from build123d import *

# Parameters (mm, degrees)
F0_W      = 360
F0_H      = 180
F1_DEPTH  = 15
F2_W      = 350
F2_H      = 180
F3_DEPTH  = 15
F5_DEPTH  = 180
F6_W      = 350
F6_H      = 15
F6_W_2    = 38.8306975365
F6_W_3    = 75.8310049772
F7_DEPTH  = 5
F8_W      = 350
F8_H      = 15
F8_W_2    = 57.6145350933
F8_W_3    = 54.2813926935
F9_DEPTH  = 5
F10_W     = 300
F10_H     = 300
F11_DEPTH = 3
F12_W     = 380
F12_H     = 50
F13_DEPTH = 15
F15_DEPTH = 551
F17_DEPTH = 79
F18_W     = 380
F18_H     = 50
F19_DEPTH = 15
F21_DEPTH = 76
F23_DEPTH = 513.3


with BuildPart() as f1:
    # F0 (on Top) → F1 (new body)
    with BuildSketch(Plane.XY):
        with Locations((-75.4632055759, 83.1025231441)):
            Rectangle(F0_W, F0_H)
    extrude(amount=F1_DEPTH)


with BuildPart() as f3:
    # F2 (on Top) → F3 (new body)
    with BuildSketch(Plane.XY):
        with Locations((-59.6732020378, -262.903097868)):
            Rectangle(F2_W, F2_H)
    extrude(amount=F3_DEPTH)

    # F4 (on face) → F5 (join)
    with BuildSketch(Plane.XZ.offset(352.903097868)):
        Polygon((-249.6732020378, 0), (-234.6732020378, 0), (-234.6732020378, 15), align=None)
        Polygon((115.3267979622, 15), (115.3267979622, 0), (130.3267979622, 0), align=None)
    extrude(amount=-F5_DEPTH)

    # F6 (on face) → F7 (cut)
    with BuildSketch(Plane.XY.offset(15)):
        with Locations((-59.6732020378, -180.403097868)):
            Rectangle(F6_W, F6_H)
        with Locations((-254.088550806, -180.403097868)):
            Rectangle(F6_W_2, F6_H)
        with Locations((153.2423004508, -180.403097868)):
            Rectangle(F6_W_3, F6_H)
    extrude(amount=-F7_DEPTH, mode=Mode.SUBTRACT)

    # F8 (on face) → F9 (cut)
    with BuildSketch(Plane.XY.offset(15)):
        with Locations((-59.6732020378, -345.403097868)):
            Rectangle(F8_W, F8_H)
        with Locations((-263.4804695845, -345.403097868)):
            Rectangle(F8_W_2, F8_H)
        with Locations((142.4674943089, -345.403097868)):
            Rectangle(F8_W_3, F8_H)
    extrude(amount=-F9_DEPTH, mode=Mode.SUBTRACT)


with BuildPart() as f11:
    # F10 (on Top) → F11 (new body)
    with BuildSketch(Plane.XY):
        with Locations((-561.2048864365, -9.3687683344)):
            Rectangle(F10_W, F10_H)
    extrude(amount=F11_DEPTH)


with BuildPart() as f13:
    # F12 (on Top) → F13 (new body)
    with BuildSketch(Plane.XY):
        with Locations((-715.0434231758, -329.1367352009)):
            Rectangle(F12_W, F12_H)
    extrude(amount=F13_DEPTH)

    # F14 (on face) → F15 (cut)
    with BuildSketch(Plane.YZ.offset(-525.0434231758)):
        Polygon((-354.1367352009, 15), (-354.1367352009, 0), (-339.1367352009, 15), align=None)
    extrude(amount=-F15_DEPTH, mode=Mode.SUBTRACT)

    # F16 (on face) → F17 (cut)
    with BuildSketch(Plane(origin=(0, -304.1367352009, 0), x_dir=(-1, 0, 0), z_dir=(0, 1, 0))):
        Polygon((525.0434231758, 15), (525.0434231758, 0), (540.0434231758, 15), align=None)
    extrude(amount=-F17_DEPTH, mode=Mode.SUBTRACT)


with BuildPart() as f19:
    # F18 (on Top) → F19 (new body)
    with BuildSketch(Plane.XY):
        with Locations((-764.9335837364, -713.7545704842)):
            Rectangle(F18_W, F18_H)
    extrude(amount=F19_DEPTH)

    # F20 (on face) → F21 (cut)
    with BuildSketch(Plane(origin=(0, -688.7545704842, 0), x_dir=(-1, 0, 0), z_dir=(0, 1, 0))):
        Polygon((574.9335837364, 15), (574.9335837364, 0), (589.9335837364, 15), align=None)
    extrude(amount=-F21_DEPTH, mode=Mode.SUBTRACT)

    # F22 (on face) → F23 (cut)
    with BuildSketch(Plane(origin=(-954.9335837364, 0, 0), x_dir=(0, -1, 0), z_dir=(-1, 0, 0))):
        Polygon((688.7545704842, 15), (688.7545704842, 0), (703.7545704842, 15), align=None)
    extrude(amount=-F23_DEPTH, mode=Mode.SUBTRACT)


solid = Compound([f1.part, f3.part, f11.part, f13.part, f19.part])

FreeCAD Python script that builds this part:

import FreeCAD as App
import Part
import Sketcher

doc = App.newDocument("Part")
body = doc.addObject("PartDesign::Body", "Body")

sketch1 = doc.addObject("Sketcher::SketchObject", "Sketch")
body.addObject(sketch1)
sketch1.AttachmentSupport = (doc.XY_Plane, [""])
sketch1.MapMode = "FlatFace"
sketch1.addGeometry(Part.LineSegment(App.Vector(-255, 173, 0), App.Vector(-255, -7, 0)), False)
sketch1.addGeometry(Part.LineSegment(App.Vector(-255, -7, 0), App.Vector(105, -7, 0)), False)
sketch1.addGeometry(Part.LineSegment(App.Vector(105, -7, 0), App.Vector(105, 173, 0)), False)
sketch1.addGeometry(Part.LineSegment(App.Vector(105, 173, 0), App.Vector(-255, 173, 0)), False)
sketch1.addConstraint(Sketcher.Constraint("Coincident", 0, 2, 1, 1))
sketch1.addConstraint(Sketcher.Constraint("Coincident", 1, 2, 2, 1))
sketch1.addConstraint(Sketcher.Constraint("Coincident", 2, 2, 3, 1))
sketch1.addConstraint(Sketcher.Constraint("Coincident", 3, 2, 0, 1))
sketch1.addConstraint(Sketcher.Constraint("Vertical", 0))
sketch1.addConstraint(Sketcher.Constraint("Horizontal", 1))
sketch1.addConstraint(Sketcher.Constraint("Vertical", 2))
sketch1.addConstraint(Sketcher.Constraint("Horizontal", 3))
sketch1.addConstraint(Sketcher.Constraint("DistanceX", 1, 1, 1, 2, 360.0))
sketch1.addConstraint(Sketcher.Constraint("DistanceY", 0, 2, 0, 1, 180.0))
sketch1.addConstraint(Sketcher.Constraint("DistanceX", 0, 2, -1, 1, 255.463206))
sketch1.addConstraint(Sketcher.Constraint("DistanceY", 0, 2, -1, 1, 6.897477))
pad1 = doc.addObject("PartDesign::Pad", "Pad")
body.addObject(pad1)
pad1.Profile = sketch1
pad1.Length = 15
body2 = doc.addObject("PartDesign::Body", "Body001")

sketch2 = doc.addObject("Sketcher::SketchObject", "Sketch001")
body2.addObject(sketch2)
sketch2.AttachmentSupport = (doc.getObject("XY_Plane001"), [""])
sketch2.MapMode = "FlatFace"
sketch2.addGeometry(Part.LineSegment(App.Vector(-235, -173, 0), App.Vector(-235, -353, 0)), False)
sketch2.addGeometry(Part.LineSegment(App.Vector(-235, -353, 0), App.Vector(115, -353, 0)), False)
sketch2.addGeometry(Part.LineSegment(App.Vector(115, -353, 0), App.Vector(115, -173, 0)), False)
sketch2.addGeometry(Part.LineSegment(App.Vector(115, -173, 0), App.Vector(-235, -173, 0)), False)
sketch2.addConstraint(Sketcher.Constraint("Coincident", 0, 2, 1, 1))
sketch2.addConstraint(Sketcher.Constraint("Coincident", 1, 2, 2, 1))
sketch2.addConstraint(Sketcher.Constraint("Coincident", 2, 2, 3, 1))
sketch2.addConstraint(Sketcher.Constraint("Coincident", 3, 2, 0, 1))
sketch2.addConstraint(Sketcher.Constraint("Vertical", 0))
sketch2.addConstraint(Sketcher.Constraint("Horizontal", 1))
sketch2.addConstraint(Sketcher.Constraint("Vertical", 2))
sketch2.addConstraint(Sketcher.Constraint("Horizontal", 3))
sketch2.addConstraint(Sketcher.Constraint("DistanceX", 1, 1, 1, 2, 350.0))
sketch2.addConstraint(Sketcher.Constraint("DistanceY", 0, 2, 0, 1, 180.0))
sketch2.addConstraint(Sketcher.Constraint("DistanceX", 0, 2, -1, 1, 234.673202))
sketch2.addConstraint(Sketcher.Constraint("DistanceY", 0, 2, -1, 1, 352.903098))
pad2 = doc.addObject("PartDesign::Pad", "Pad001")
body2.addObject(pad2)
pad2.Profile = sketch2
pad2.Length = 15

sketch3 = doc.addObject("Sketcher::SketchObject", "Sketch002")
body2.addObject(sketch3)
sketch3.AttachmentSupport = (doc.getObject("XZ_Plane001"), [""])
sketch3.MapMode = "FlatFace"
sketch3.AttachmentOffset = App.Placement(App.Vector(0, 0, 352.903098), App.Rotation())
sketch3.addGeometry(Part.LineSegment(App.Vector(-250, 0, 0), App.Vector(-235, 0, 0)), False)
sketch3.addGeometry(Part.LineSegment(App.Vector(-235, 0, 0), App.Vector(-235, 15, 0)), False)
sketch3.addGeometry(Part.LineSegment(App.Vector(-235, 15, 0), App.Vector(-250, 0, 0)), False)
sketch3.addGeometry(Part.LineSegment(App.Vector(115, 15, 0), App.Vector(115, 0, 0)), False)
sketch3.addGeometry(Part.LineSegment(App.Vector(115, 0, 0), App.Vector(130, 0, 0)), False)
sketch3.addGeometry(Part.LineSegment(App.Vector(130, 0, 0), App.Vector(115, 15, 0)), False)
sketch3.addConstraint(Sketcher.Constraint("Coincident", 0, 2, 1, 1))
sketch3.addConstraint(Sketcher.Constraint("Coincident", 1, 2, 2, 1))
sketch3.addConstraint(Sketcher.Constraint("Coincident", 2, 2, 0, 1))
sketch3.addConstraint(Sketcher.Constraint("Coincident", 3, 2, 4, 1))
sketch3.addConstraint(Sketcher.Constraint("Coincident", 4, 2, 5, 1))
sketch3.addConstraint(Sketcher.Constraint("Coincident", 5, 2, 3, 1))
sketch3.addConstraint(Sketcher.Constraint("Horizontal", 0))
sketch3.addConstraint(Sketcher.Constraint("Vertical", 1))
sketch3.addConstraint(Sketcher.Constraint("Vertical", 3))
sketch3.addConstraint(Sketcher.Constraint("Horizontal", 4))
sketch3.addConstraint(Sketcher.Constraint("PointOnObject", 0, 2, -1))
sketch3.addConstraint(Sketcher.Constraint("PointOnObject", 3, 2, -1))
sketch3.addConstraint(Sketcher.Constraint("Perpendicular", 2, 5))
sketch3.addConstraint(Sketcher.Constraint("Horizontal", 1, 2, 5, 2))
sketch3.addConstraint(Sketcher.Constraint("Equal", 0, 4))
sketch3.addConstraint(Sketcher.Constraint("DistanceX", 0, 1, 0, 2, 15.0))
sketch3.addConstraint(Sketcher.Constraint("DistanceX", 0, 2, 3, 2, 350.0))
sketch3.addConstraint(Sketcher.Constraint("DistanceX", 0, 2, -1, 1, 234.673202))
pad3 = doc.addObject("PartDesign::Pad", "Pad002")
body2.addObject(pad3)
pad3.Profile = sketch3
pad3.Length = 180
pad3.Reversed = True

sketch4 = doc.addObject("Sketcher::SketchObject", "Sketch003")
body2.addObject(sketch4)
sketch4.AttachmentSupport = (doc.getObject("XY_Plane001"), [""])
sketch4.MapMode = "FlatFace"
sketch4.AttachmentOffset = App.Placement(App.Vector(0, 0, 15), App.Rotation())
sketch4.addGeometry(Part.LineSegment(App.Vector(-274, -173, 0), App.Vector(-274, -188, 0)), False)
sketch4.addGeometry(Part.LineSegment(App.Vector(-274, -188, 0), App.Vector(191, -188, 0)), False)
sketch4.addGeometry(Part.LineSegment(App.Vector(191, -188, 0), App.Vector(191, -173, 0)), False)
sketch4.addGeometry(Part.LineSegment(App.Vector(191, -173, 0), App.Vector(-274, -173, 0)), False)
sketch4.addConstraint(Sketcher.Constraint("Coincident", 0, 2, 1, 1))
sketch4.addConstraint(Sketcher.Constraint("Coincident", 1, 2, 2, 1))
sketch4.addConstraint(Sketcher.Constraint("Coincident", 2, 2, 3, 1))
sketch4.addConstraint(Sketcher.Constraint("Coincident", 3, 2, 0, 1))
sketch4.addConstraint(Sketcher.Constraint("Vertical", 0))
sketch4.addConstraint(Sketcher.Constraint("Horizontal", 1))
sketch4.addConstraint(Sketcher.Constraint("Vertical", 2))
sketch4.addConstraint(Sketcher.Constraint("Horizontal", 3))
sketch4.addConstraint(Sketcher.Constraint("DistanceY", 0, 2, 0, 1, 15.0))
sketch4.addConstraint(Sketcher.Constraint("DistanceX", 0, 2, -1, 1, 273.5039))
sketch4.addConstraint(Sketcher.Constraint("DistanceX", 1, 1, 1, 2, 464.661703))
sketch4.addConstraint(Sketcher.Constraint("DistanceY", 0, 2, -1, 1, 187.903098))
pocket1 = doc.addObject("PartDesign::Pocket", "Pocket")
body2.addObject(pocket1)
pocket1.Profile = sketch4
pocket1.Length = 5

sketch5 = doc.addObject("Sketcher::SketchObject", "Sketch004")
body2.addObject(sketch5)
sketch5.AttachmentSupport = (doc.getObject("XY_Plane001"), [""])
sketch5.MapMode = "FlatFace"
sketch5.AttachmentOffset = App.Placement(App.Vector(0, 0, 15), App.Rotation())
sketch5.addGeometry(Part.LineSegment(App.Vector(-292, -338, 0), App.Vector(-292, -353, 0)), False)
sketch5.addGeometry(Part.LineSegment(App.Vector(-292, -353, 0), App.Vector(170, -353, 0)), False)
sketch5.addGeometry(Part.LineSegment(App.Vector(170, -353, 0), App.Vector(170, -338, 0)), False)
sketch5.addGeometry(Part.LineSegment(App.Vector(170, -338, 0), App.Vector(-292, -338, 0)), False)
sketch5.addConstraint(Sketcher.Constraint("Coincident", 0, 2, 1, 1))
sketch5.addConstraint(Sketcher.Constraint("Coincident", 1, 2, 2, 1))
sketch5.addConstraint(Sketcher.Constraint("Coincident", 2, 2, 3, 1))
sketch5.addConstraint(Sketcher.Constraint("Coincident", 3, 2, 0, 1))
sketch5.addConstraint(Sketcher.Constraint("Vertical", 0))
sketch5.addConstraint(Sketcher.Constraint("Horizontal", 1))
sketch5.addConstraint(Sketcher.Constraint("Vertical", 2))
sketch5.addConstraint(Sketcher.Constraint("Horizontal", 3))
sketch5.addConstraint(Sketcher.Constraint("DistanceY", 0, 2, 0, 1, 15.0))
sketch5.addConstraint(Sketcher.Constraint("DistanceX", 1, 1, 1, 2, 461.895928))
sketch5.addConstraint(Sketcher.Constraint("DistanceX", -1, 1, 1, 2, 169.608191))
sketch5.addConstraint(Sketcher.Constraint("DistanceY", 0, 2, -1, 1, 352.903098))
pocket2 = doc.addObject("PartDesign::Pocket", "Pocket001")
body2.addObject(pocket2)
pocket2.Profile = sketch5
pocket2.Length = 5
body3 = doc.addObject("PartDesign::Body", "Body002")

sketch6 = doc.addObject("Sketcher::SketchObject", "Sketch005")
body3.addObject(sketch6)
sketch6.AttachmentSupport = (doc.getObject("XY_Plane002"), [""])
sketch6.MapMode = "FlatFace"
sketch6.addGeometry(Part.LineSegment(App.Vector(-711, 141, 0), App.Vector(-711, -159, 0)), False)
sketch6.addGeometry(Part.LineSegment(App.Vector(-711, -159, 0), App.Vector(-411, -159, 0)), False)
sketch6.addGeometry(Part.LineSegment(App.Vector(-411, -159, 0), App.Vector(-411, 141, 0)), False)
sketch6.addGeometry(Part.LineSegment(App.Vector(-411, 141, 0), App.Vector(-711, 141, 0)), False)
sketch6.addConstraint(Sketcher.Constraint("Coincident", 0, 2, 1, 1))
sketch6.addConstraint(Sketcher.Constraint("Coincident", 1, 2, 2, 1))
sketch6.addConstraint(Sketcher.Constraint("Coincident", 2, 2, 3, 1))
sketch6.addConstraint(Sketcher.Constraint("Coincident", 3, 2, 0, 1))
sketch6.addConstraint(Sketcher.Constraint("Vertical", 0))
sketch6.addConstraint(Sketcher.Constraint("Horizontal", 1))
sketch6.addConstraint(Sketcher.Constraint("Vertical", 2))
sketch6.addConstraint(Sketcher.Constraint("Horizontal", 3))
sketch6.addConstraint(Sketcher.Constraint("Equal", 3, 0))
sketch6.addConstraint(Sketcher.Constraint("DistanceX", 1, 1, 1, 2, 300.0))
sketch6.addConstraint(Sketcher.Constraint("DistanceY", 0, 2, -1, 1, 159.368768))
sketch6.addConstraint(Sketcher.Constraint("DistanceX", 0, 2, -1, 1, 711.204886))
pad4 = doc.addObject("PartDesign::Pad", "Pad003")
body3.addObject(pad4)
pad4.Profile = sketch6
pad4.Length = 3
body4 = doc.addObject("PartDesign::Body", "Body003")

sketch7 = doc.addObject("Sketcher::SketchObject", "Sketch006")
body4.addObject(sketch7)
sketch7.AttachmentSupport = (doc.getObject("XY_Plane003"), [""])
sketch7.MapMode = "FlatFace"
sketch7.addGeometry(Part.LineSegment(App.Vector(-905, -304, 0), App.Vector(-905, -354, 0)), False)
sketch7.addGeometry(Part.LineSegment(App.Vector(-905, -354, 0), App.Vector(-525, -354, 0)), False)
sketch7.addGeometry(Part.LineSegment(App.Vector(-525, -354, 0), App.Vector(-525, -304, 0)), False)
sketch7.addGeometry(Part.LineSegment(App.Vector(-525, -304, 0), App.Vector(-905, -304, 0)), False)
sketch7.addConstraint(Sketcher.Constraint("Coincident", 0, 2, 1, 1))
sketch7.addConstraint(Sketcher.Constraint("Coincident", 1, 2, 2, 1))
sketch7.addConstraint(Sketcher.Constraint("Coincident", 2, 2, 3, 1))
sketch7.addConstraint(Sketcher.Constraint("Coincident", 3, 2, 0, 1))
sketch7.addConstraint(Sketcher.Constraint("Vertical", 0))
sketch7.addConstraint(Sketcher.Constraint("Horizontal", 1))
sketch7.addConstraint(Sketcher.Constraint("Vertical", 2))
sketch7.addConstraint(Sketcher.Constraint("Horizontal", 3))
sketch7.addConstraint(Sketcher.Constraint("DistanceX", 1, 1, 1, 2, 380.0))
sketch7.addConstraint(Sketcher.Constraint("DistanceY", 0, 2, 0, 1, 50.0))
sketch7.addConstraint(Sketcher.Constraint("DistanceX", 0, 2, -1, 1, 905.043423))
sketch7.addConstraint(Sketcher.Constraint("DistanceY", 0, 2, -1, 1, 354.136735))
pad5 = doc.addObject("PartDesign::Pad", "Pad004")
body4.addObject(pad5)
pad5.Profile = sketch7
pad5.Length = 15

sketch8 = doc.addObject("Sketcher::SketchObject", "Sketch007")
body4.addObject(sketch8)
sketch8.AttachmentSupport = (doc.getObject("YZ_Plane003"), [""])
sketch8.MapMode = "FlatFace"
sketch8.AttachmentOffset = App.Placement(App.Vector(0, 0, -525.043423), App.Rotation())
sketch8.addGeometry(Part.LineSegment(App.Vector(-354, 15, 0), App.Vector(-354, 0, 0)), False)
sketch8.addGeometry(Part.LineSegment(App.Vector(-354, 0, 0), App.Vector(-339, 15, 0)), False)
sketch8.addGeometry(Part.LineSegment(App.Vector(-339, 15, 0), App.Vector(-354, 15, 0)), False)
sketch8.addConstraint(Sketcher.Constraint("Coincident", 0, 2, 1, 1))
sketch8.addConstraint(Sketcher.Constraint("Coincident", 1, 2, 2, 1))
sketch8.addConstraint(Sketcher.Constraint("Coincident", 2, 2, 0, 1))
sketch8.addConstraint(Sketcher.Constraint("Vertical", 0))
sketch8.addConstraint(Sketcher.Constraint("Horizontal", 2))
sketch8.addConstraint(Sketcher.Constraint("PointOnObject", 0, 2, -1))
sketch8.addConstraint(Sketcher.Constraint("Equal", 2, 0))
sketch8.addConstraint(Sketcher.Constraint("DistanceX", 2, 2, 2, 1, 15.0))
sketch8.addConstraint(Sketcher.Constraint("DistanceX", 0, 2, -1, 1, 354.136735))
pocket3 = doc.addObject("PartDesign::Pocket", "Pocket002")
body4.addObject(pocket3)
pocket3.Profile = sketch8
pocket3.Length = 551

sketch9 = doc.addObject("Sketcher::SketchObject", "Sketch008")
body4.addObject(sketch9)
sketch9.AttachmentSupport = (doc.getObject("XZ_Plane003"), [""])
sketch9.MapMode = "FlatFace"
sketch9.AttachmentOffset = App.Placement(App.Vector(0, 0, 304.136735), App.Rotation())
sketch9.addGeometry(Part.LineSegment(App.Vector(-525, 15, 0), App.Vector(-525, 0, 0)), False)
sketch9.addGeometry(Part.LineSegment(App.Vector(-525, 0, 0), App.Vector(-540, 15, 0)), False)
sketch9.addGeometry(Part.LineSegment(App.Vector(-540, 15, 0), App.Vector(-525, 15, 0)), False)
sketch9.addConstraint(Sketcher.Constraint("Coincident", 0, 2, 1, 1))
sketch9.addConstraint(Sketcher.Constraint("Coincident", 1, 2, 2, 1))
sketch9.addConstraint(Sketcher.Constraint("Coincident", 2, 2, 0, 1))
sketch9.addConstraint(Sketcher.Constraint("Vertical", 0))
sketch9.addConstraint(Sketcher.Constraint("Horizontal", 2))
sketch9.addConstraint(Sketcher.Constraint("PointOnObject", 0, 2, -1))
sketch9.addConstraint(Sketcher.Constraint("Equal", 2, 0))
sketch9.addConstraint(Sketcher.Constraint("DistanceX", 2, 1, 2, 2, 15.0))
sketch9.addConstraint(Sketcher.Constraint("DistanceX", 0, 2, -1, 1, 525.043423))
pocket4 = doc.addObject("PartDesign::Pocket", "Pocket003")
body4.addObject(pocket4)
pocket4.Profile = sketch9
pocket4.Length = 79
pocket4.Reversed = True
body5 = doc.addObject("PartDesign::Body", "Body004")

sketch10 = doc.addObject("Sketcher::SketchObject", "Sketch009")
body5.addObject(sketch10)
sketch10.AttachmentSupport = (doc.getObject("XY_Plane004"), [""])
sketch10.MapMode = "FlatFace"
sketch10.addGeometry(Part.LineSegment(App.Vector(-955, -689, 0), App.Vector(-955, -739, 0)), False)
sketch10.addGeometry(Part.LineSegment(App.Vector(-955, -739, 0), App.Vector(-575, -739, 0)), False)
sketch10.addGeometry(Part.LineSegment(App.Vector(-575, -739, 0), App.Vector(-575, -689, 0)), False)
sketch10.addGeometry(Part.LineSegment(App.Vector(-575, -689, 0), App.Vector(-955, -689, 0)), False)
sketch10.addConstraint(Sketcher.Constraint("Coincident", 0, 2, 1, 1))
sketch10.addConstraint(Sketcher.Constraint("Coincident", 1, 2, 2, 1))
sketch10.addConstraint(Sketcher.Constraint("Coincident", 2, 2, 3, 1))
sketch10.addConstraint(Sketcher.Constraint("Coincident", 3, 2, 0, 1))
sketch10.addConstraint(Sketcher.Constraint("Vertical", 0))
sketch10.addConstraint(Sketcher.Constraint("Horizontal", 1))
sketch10.addConstraint(Sketcher.Constraint("Vertical", 2))
sketch10.addConstraint(Sketcher.Constraint("Horizontal", 3))
sketch10.addConstraint(Sketcher.Constraint("DistanceX", 1, 1, 1, 2, 380.0))
sketch10.addConstraint(Sketcher.Constraint("DistanceY", 0, 2, 0, 1, 50.0))
sketch10.addConstraint(Sketcher.Constraint("DistanceY", 0, 2, -1, 1, 738.75457))
sketch10.addConstraint(Sketcher.Constraint("DistanceX", 0, 2, -1, 1, 954.933584))
pad6 = doc.addObject("PartDesign::Pad", "Pad005")
body5.addObject(pad6)
pad6.Profile = sketch10
pad6.Length = 15

sketch11 = doc.addObject("Sketcher::SketchObject", "Sketch010")
body5.addObject(sketch11)
sketch11.AttachmentSupport = (doc.getObject("XZ_Plane004"), [""])
sketch11.MapMode = "FlatFace"
sketch11.AttachmentOffset = App.Placement(App.Vector(0, 0, 688.75457), App.Rotation())
sketch11.addGeometry(Part.LineSegment(App.Vector(-575, 15, 0), App.Vector(-575, 0, 0)), False)
sketch11.addGeometry(Part.LineSegment(App.Vector(-575, 0, 0), App.Vector(-590, 15, 0)), False)
sketch11.addGeometry(Part.LineSegment(App.Vector(-590, 15, 0), App.Vector(-575, 15, 0)), False)
sketch11.addConstraint(Sketcher.Constraint("Coincident", 0, 2, 1, 1))
sketch11.addConstraint(Sketcher.Constraint("Coincident", 1, 2, 2, 1))
sketch11.addConstraint(Sketcher.Constraint("Coincident", 2, 2, 0, 1))
sketch11.addConstraint(Sketcher.Constraint("Vertical", 0))
sketch11.addConstraint(Sketcher.Constraint("Horizontal", 2))
sketch11.addConstraint(Sketcher.Constraint("PointOnObject", 0, 2, -1))
sketch11.addConstraint(Sketcher.Constraint("Equal", 2, 0))
sketch11.addConstraint(Sketcher.Constraint("DistanceX", 2, 1, 2, 2, 15.0))
sketch11.addConstraint(Sketcher.Constraint("DistanceX", 0, 2, -1, 1, 574.933584))
pocket5 = doc.addObject("PartDesign::Pocket", "Pocket004")
body5.addObject(pocket5)
pocket5.Profile = sketch11
pocket5.Length = 76
pocket5.Reversed = True

sketch12 = doc.addObject("Sketcher::SketchObject", "Sketch011")
body5.addObject(sketch12)
sketch12.AttachmentSupport = (doc.getObject("YZ_Plane004"), [""])
sketch12.MapMode = "FlatFace"
sketch12.AttachmentOffset = App.Placement(App.Vector(0, 0, -954.933584), App.Rotation())
sketch12.addGeometry(Part.LineSegment(App.Vector(-689, 15, 0), App.Vector(-689, 0, 0)), False)
sketch12.addGeometry(Part.LineSegment(App.Vector(-689, 0, 0), App.Vector(-704, 15, 0)), False)
sketch12.addGeometry(Part.LineSegment(App.Vector(-704, 15, 0), App.Vector(-689, 15, 0)), False)
sketch12.addConstraint(Sketcher.Constraint("Coincident", 0, 2, 1, 1))
sketch12.addConstraint(Sketcher.Constraint("Coincident", 1, 2, 2, 1))
sketch12.addConstraint(Sketcher.Constraint("Coincident", 2, 2, 0, 1))
sketch12.addConstraint(Sketcher.Constraint("Vertical", 0))
sketch12.addConstraint(Sketcher.Constraint("Horizontal", 2))
sketch12.addConstraint(Sketcher.Constraint("PointOnObject", 0, 2, -1))
sketch12.addConstraint(Sketcher.Constraint("Equal", 2, 0))
sketch12.addConstraint(Sketcher.Constraint("DistanceX", 2, 1, 2, 2, 15.0))
sketch12.addConstraint(Sketcher.Constraint("DistanceX", 0, 2, -1, 1, 688.75457))
pocket6 = doc.addObject("PartDesign::Pocket", "Pocket005")
body5.addObject(pocket6)
pocket6.Profile = sketch12
pocket6.Length = 513.3
pocket6.Reversed = True

doc.recompute()
